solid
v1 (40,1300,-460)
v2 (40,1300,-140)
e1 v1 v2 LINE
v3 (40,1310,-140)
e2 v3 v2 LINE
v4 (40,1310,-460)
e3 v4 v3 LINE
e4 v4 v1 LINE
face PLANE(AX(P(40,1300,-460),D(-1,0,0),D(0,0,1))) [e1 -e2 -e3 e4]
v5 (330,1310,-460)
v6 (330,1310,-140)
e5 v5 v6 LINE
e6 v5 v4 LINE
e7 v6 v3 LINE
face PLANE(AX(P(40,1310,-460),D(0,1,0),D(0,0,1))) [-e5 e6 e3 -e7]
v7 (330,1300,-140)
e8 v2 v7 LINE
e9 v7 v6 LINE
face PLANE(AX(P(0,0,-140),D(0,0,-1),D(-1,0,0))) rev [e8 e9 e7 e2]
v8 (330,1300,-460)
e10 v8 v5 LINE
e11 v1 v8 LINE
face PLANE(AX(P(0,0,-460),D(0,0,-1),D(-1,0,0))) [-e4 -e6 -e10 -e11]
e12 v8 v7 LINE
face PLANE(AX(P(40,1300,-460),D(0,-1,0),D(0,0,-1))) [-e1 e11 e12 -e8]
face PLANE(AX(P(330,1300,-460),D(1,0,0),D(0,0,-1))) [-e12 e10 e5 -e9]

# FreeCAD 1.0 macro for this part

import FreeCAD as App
import Part
import Sketcher
from FreeCAD import Vector


def add_polygon(sketch, points):
    """Adds a closed chain of lines whose ends are joined by coincident constraints."""
    first, n = sketch.GeometryCount, len(points)
    for a, b in zip(points, points[1:] + points[:1]):
        sketch.addGeometry(Part.LineSegment(App.Vector(*a, 0), App.Vector(*b, 0)), False)
    for i in range(n):
        sketch.addConstraint(Sketcher.Constraint("Coincident", first + i, 2, first + (i + 1) % n, 1))

doc = App.newDocument("Part")
params = doc.addObject("Spreadsheet::Sheet", "Params")
for row, (alias, value) in enumerate([
    ("sketch1_width", "290 mm"),
    ("sketch1_height", "10 mm"),
    ("pad1_length", "320 mm"),
], start=1):
    params.set(f"A{row}", alias)
    params.set(f"B{row}", "=" + value)
    params.setAlias(f"B{row}", alias)

body = doc.addObject("PartDesign::Body", "Body")

# Sketch on XY plane
sketch1 = body.newObject("Sketcher::SketchObject", "Sketch")
sketch1.AttachmentSupport = (doc.getObject("XY_Plane"), [""])
sketch1.MapMode = "FlatFace"
sketch1.AttachmentOffset = App.Placement(Vector(0, 0, -140), App.Rotation())
add_polygon(sketch1, [(40, 1310), (40, 1300), (330, 1300), (330, 1310)])  # lines 0-3
sketch1.addConstraint(Sketcher.Constraint("Vertical", 0))
sketch1.addConstraint(Sketcher.Constraint("Horizontal", 1))
sketch1.addConstraint(Sketcher.Constraint("Vertical", 2))
sketch1.addConstraint(Sketcher.Constraint("Horizontal", 3))
sketch1.addConstraint(Sketcher.Constraint("DistanceX", 1, 1, 1, 2, 290.0))
sketch1.addConstraint(Sketcher.Constraint("DistanceY", 0, 2, 0, 1, 10.0))
sketch1.addConstraint(Sketcher.Constraint("DistanceX", -1, 1, 0, 2, 40.0))
sketch1.addConstraint(Sketcher.Constraint("DistanceY", -1, 1, 0, 2, 1300.0))
sketch1.setExpression("Constraints[8]", "Params.sketch1_width")
sketch1.setExpression("Constraints[9]", "Params.sketch1_height")
pad1 = body.newObject("PartDesign::Pad", "Pad")
pad1.Profile = sketch1
pad1.setExpression("Length", "Params.pad1_length")
pad1.Reversed = True

doc.recompute()
